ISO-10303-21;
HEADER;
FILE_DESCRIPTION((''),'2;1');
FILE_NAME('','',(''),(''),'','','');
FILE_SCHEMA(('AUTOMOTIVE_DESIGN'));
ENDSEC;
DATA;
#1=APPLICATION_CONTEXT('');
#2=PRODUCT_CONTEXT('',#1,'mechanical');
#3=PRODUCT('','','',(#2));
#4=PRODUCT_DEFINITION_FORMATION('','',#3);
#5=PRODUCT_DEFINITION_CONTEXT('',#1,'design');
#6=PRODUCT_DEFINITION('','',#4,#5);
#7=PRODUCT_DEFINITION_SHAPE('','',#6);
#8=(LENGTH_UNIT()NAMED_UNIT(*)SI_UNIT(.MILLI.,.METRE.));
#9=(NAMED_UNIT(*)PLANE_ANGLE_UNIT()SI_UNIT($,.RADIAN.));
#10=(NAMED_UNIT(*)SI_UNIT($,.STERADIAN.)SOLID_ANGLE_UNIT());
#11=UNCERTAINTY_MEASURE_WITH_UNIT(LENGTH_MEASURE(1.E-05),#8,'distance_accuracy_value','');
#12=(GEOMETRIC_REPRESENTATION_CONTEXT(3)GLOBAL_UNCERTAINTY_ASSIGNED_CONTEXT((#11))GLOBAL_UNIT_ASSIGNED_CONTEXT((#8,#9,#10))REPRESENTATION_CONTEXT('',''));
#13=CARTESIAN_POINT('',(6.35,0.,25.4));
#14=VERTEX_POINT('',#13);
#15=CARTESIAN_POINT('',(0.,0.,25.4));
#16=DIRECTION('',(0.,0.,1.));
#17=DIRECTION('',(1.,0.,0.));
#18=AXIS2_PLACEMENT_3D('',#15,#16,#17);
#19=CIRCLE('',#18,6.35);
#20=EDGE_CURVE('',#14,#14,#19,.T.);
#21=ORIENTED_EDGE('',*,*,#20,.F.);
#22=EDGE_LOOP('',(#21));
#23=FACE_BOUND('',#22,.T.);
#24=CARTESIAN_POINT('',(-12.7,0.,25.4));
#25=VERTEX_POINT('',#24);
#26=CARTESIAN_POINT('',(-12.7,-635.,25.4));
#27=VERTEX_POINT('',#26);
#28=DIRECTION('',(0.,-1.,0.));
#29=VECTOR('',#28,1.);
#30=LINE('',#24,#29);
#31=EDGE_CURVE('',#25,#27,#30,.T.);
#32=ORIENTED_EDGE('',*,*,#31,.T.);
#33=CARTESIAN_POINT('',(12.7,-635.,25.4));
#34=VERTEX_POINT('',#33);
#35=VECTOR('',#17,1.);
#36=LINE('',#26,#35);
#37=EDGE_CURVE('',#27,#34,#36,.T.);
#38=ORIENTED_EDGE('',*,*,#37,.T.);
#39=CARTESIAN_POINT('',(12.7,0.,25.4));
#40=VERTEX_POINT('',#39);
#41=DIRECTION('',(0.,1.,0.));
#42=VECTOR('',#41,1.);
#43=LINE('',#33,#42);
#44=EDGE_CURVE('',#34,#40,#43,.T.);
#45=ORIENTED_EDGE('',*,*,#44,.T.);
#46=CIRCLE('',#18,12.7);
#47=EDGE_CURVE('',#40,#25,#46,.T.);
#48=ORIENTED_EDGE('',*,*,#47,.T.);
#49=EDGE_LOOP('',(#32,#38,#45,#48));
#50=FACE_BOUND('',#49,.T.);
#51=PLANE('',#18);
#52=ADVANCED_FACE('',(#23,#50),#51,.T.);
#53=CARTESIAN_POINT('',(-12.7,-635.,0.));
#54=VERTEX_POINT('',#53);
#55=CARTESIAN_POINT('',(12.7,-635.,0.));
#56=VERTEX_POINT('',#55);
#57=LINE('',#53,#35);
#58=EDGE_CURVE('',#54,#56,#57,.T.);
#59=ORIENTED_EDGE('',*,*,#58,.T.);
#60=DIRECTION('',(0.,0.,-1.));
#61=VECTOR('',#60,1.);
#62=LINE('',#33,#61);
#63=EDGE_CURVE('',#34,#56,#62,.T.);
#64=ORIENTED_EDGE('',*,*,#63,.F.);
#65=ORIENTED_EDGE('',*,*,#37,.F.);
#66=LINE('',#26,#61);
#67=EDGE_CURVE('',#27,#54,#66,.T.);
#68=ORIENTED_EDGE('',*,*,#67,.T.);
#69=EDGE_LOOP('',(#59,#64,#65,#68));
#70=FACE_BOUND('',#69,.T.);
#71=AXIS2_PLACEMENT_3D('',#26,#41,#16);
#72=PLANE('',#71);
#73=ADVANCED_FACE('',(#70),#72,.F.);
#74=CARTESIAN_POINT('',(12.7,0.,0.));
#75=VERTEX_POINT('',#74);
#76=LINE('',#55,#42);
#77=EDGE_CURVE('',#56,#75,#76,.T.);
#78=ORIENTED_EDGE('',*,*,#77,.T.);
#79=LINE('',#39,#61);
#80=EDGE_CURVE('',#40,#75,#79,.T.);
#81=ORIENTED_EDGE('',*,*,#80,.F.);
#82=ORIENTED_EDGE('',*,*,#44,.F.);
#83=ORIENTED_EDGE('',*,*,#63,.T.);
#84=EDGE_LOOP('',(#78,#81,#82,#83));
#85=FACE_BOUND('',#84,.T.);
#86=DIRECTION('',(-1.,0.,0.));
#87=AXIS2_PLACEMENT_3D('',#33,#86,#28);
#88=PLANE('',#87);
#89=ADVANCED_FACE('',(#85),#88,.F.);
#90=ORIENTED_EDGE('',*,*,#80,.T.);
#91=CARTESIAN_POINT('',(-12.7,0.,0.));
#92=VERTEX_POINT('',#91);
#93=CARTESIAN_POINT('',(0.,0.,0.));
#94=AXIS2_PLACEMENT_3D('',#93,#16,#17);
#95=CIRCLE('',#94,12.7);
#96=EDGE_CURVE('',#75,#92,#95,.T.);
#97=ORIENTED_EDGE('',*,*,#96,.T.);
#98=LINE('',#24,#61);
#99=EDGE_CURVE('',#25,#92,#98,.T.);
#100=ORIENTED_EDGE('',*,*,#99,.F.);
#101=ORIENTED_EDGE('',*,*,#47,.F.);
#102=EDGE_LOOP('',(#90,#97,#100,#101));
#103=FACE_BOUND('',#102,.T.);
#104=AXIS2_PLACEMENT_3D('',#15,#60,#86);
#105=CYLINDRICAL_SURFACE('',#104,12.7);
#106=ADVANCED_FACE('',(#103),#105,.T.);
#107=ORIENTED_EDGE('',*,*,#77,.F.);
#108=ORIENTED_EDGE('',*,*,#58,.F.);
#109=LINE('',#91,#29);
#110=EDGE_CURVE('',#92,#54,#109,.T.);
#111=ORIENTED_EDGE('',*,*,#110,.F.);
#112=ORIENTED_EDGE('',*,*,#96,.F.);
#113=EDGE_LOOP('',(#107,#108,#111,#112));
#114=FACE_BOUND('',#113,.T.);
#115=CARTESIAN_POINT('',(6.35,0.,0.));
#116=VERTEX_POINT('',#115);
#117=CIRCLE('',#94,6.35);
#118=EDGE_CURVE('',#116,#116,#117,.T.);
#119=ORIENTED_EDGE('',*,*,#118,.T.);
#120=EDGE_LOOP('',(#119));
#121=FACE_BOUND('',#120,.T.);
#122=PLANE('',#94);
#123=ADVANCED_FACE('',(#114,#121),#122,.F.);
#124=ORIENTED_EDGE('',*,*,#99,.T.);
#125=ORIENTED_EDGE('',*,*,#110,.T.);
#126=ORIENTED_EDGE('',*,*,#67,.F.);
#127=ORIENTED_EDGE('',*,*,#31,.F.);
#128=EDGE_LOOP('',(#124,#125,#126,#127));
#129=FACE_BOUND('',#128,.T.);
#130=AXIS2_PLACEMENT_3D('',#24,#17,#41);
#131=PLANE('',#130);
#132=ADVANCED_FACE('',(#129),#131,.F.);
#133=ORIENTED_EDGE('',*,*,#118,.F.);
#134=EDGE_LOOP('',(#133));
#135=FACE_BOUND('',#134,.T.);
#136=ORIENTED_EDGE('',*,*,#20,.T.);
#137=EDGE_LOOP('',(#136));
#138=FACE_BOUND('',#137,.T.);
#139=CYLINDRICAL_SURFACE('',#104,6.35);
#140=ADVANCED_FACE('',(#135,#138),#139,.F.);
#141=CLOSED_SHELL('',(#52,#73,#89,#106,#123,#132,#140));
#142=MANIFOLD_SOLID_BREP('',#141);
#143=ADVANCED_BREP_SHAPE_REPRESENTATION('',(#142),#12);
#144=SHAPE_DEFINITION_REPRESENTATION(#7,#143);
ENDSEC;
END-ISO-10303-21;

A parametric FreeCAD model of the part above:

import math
import FreeCAD as App
import Part
import Sketcher
Q = App.Units.Quantity

doc = App.newDocument("Part")
body = doc.addObject("PartDesign::Body", "Body")

# Sketch on XY plane
sketch1 = body.newObject("Sketcher::SketchObject", "Sketch")
sketch1.AttachmentSupport = (doc.getObject("XY_Plane"), [""])
sketch1.MapMode = "FlatFace"
sketch1.addGeometry([
    Part.LineSegment(App.Vector(-12.7, 0, 0), App.Vector(-12.7, -635, 0)),  # 0
    Part.LineSegment(App.Vector(-12.7, -635, 0), App.Vector(12.7, -635, 0)),  # 1
    Part.LineSegment(App.Vector(12.7, -635, 0), App.Vector(12.7, 0, 0)),  # 2
    Part.ArcOfCircle(Part.Circle(App.Vector(0, 0, 0), App.Vector(0, 0, 1), 12.7), math.radians(0), math.radians(180)),  # 3
    Part.Circle(App.Vector(0, 0, 0), App.Vector(0, 0, 1), 6.35),  # 4
], False)
sketch1.addConstraint([
    Sketcher.Constraint("Coincident", 0, 2, 1, 1),
    Sketcher.Constraint("Coincident", 1, 2, 2, 1),
    Sketcher.Constraint("Tangent", 2, 2, 3, 1),
    Sketcher.Constraint("Tangent", 3, 2, 0, 1),
    Sketcher.Constraint("Vertical", 0),
    Sketcher.Constraint("Horizontal", 1),
    Sketcher.Constraint("Vertical", 2),
    Sketcher.Constraint("Coincident", 3, 3, -1, 1),
    Sketcher.Constraint("Coincident", 4, 3, -1, 1),
    Sketcher.Constraint("Diameter", 4, Q("0.5 in")),
    Sketcher.Constraint("Radius", 3, Q("0.5 in")),
    Sketcher.Constraint("DistanceY", 0, 2, 0, 1, Q("25 in")),
])
pad1 = body.newObject("PartDesign::Pad", "Pad")
pad1.Profile = sketch1
pad1.Length = Q("1 in")

doc.recompute()
